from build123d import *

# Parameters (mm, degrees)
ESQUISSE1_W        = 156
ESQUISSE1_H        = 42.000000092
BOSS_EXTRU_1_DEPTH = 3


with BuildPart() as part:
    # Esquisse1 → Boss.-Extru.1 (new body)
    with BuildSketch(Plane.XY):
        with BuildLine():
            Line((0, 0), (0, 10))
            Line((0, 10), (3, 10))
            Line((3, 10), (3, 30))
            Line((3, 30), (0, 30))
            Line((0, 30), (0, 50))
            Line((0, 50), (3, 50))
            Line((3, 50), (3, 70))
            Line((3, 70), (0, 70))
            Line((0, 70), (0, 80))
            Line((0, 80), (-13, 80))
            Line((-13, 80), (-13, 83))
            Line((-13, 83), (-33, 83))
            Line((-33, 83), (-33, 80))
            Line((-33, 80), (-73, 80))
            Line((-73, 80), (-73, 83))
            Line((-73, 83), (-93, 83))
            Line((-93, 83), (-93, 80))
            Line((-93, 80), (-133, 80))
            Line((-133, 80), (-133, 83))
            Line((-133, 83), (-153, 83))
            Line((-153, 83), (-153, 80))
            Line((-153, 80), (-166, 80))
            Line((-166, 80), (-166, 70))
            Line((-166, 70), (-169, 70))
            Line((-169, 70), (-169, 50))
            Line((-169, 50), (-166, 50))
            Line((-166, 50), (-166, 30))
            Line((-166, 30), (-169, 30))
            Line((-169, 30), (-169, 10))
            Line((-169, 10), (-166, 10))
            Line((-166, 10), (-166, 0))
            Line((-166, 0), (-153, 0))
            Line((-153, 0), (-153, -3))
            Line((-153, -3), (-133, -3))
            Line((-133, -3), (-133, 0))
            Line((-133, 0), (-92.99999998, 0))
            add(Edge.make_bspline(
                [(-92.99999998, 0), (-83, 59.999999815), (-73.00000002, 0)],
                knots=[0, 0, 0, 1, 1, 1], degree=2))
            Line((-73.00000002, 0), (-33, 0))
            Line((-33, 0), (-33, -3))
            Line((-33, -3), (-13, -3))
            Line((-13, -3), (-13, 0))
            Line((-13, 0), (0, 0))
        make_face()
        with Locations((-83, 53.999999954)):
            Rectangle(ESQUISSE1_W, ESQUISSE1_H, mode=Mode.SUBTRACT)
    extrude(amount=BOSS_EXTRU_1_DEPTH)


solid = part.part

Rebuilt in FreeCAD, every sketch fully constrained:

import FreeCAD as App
import Part
import Sketcher

V = App.Vector
Q = App.Units.Quantity


def add_polygon(sketch, points):
    """Adds a closed chain of lines whose ends are joined by coincident constraints."""
    first, n = sketch.GeometryCount, len(points)
    for a, b in zip(points, points[1:] + points[:1]):
        sketch.addGeometry(Part.LineSegment(App.Vector(*a, 0), App.Vector(*b, 0)), False)
    for i in range(n):
        sketch.addConstraint(Sketcher.Constraint("Coincident", first + i, 2, first + (i + 1) % n, 1))

doc = App.newDocument("Part")
body = doc.addObject("PartDesign::Body", "Body")

sketch1 = doc.addObject("Sketcher::SketchObject", "Sketch")
body.addObject(sketch1)
sketch1.AttachmentSupport = (doc.XY_Plane, [""])
sketch1.MapMode = "FlatFace"
sketch1.addGeometry(Part.LineSegment(V(0, 0, 0), V(0, 10, 0)), False)
sketch1.addGeometry(Part.LineSegment(V(0, 10, 0), V(3, 10, 0)), False)
sketch1.addGeometry(Part.LineSegment(V(3, 10, 0), V(3, 30, 0)), False)
sketch1.addGeometry(Part.LineSegment(V(3, 30, 0), V(0, 30, 0)), False)
sketch1.addGeometry(Part.LineSegment(V(0, 30, 0), V(0, 50, 0)), False)
sketch1.addGeometry(Part.LineSegment(V(0, 50, 0), V(3, 50, 0)), False)
sketch1.addGeometry(Part.LineSegment(V(3, 50, 0), V(3, 70, 0)), False)
sketch1.addGeometry(Part.LineSegment(V(3, 70, 0), V(0, 70, 0)), False)
sketch1.addGeometry(Part.LineSegment(V(0, 70, 0), V(0, 80, 0)), False)
sketch1.addGeometry(Part.LineSegment(V(0, 80, 0), V(-13, 80, 0)), False)
sketch1.addGeometry(Part.LineSegment(V(-13, 80, 0), V(-13, 83, 0)), False)
sketch1.addGeometry(Part.LineSegment(V(-13, 83, 0), V(-33, 83, 0)), False)
sketch1.addGeometry(Part.LineSegment(V(-33, 83, 0), V(-33, 80, 0)), False)
sketch1.addGeometry(Part.LineSegment(V(-33, 80, 0), V(-73, 80, 0)), False)
sketch1.addGeometry(Part.LineSegment(V(-73, 80, 0), V(-73, 83, 0)), False)
sketch1.addGeometry(Part.LineSegment(V(-73, 83, 0), V(-93, 83, 0)), False)
sketch1.addGeometry(Part.LineSegment(V(-93, 83, 0), V(-93, 80, 0)), False)
sketch1.addGeometry(Part.LineSegment(V(-93, 80, 0), V(-133, 80, 0)), False)
sketch1.addGeometry(Part.LineSegment(V(-133, 80, 0), V(-133, 83, 0)), False)
sketch1.addGeometry(Part.LineSegment(V(-133, 83, 0), V(-153, 83, 0)), False)
sketch1.addGeometry(Part.LineSegment(V(-153, 83, 0), V(-153, 80, 0)), False)
sketch1.addGeometry(Part.LineSegment(V(-153, 80, 0), V(-166, 80, 0)), False)
sketch1.addGeometry(Part.LineSegment(V(-166, 80, 0), V(-166, 70, 0)), False)
sketch1.addGeometry(Part.LineSegment(V(-166, 70, 0), V(-169, 70, 0)), False)
sketch1.addGeometry(Part.LineSegment(V(-169, 70, 0), V(-169, 50, 0)), False)
sketch1.addGeometry(Part.LineSegment(V(-169, 50, 0), V(-166, 50, 0)), False)
sketch1.addGeometry(Part.LineSegment(V(-166, 50, 0), V(-166, 30, 0)), False)
sketch1.addGeometry(Part.LineSegment(V(-166, 30, 0), V(-169, 30, 0)), False)
sketch1.addGeometry(Part.LineSegment(V(-169, 30, 0), V(-169, 10, 0)), False)
sketch1.addGeometry(Part.LineSegment(V(-169, 10, 0), V(-166, 10, 0)), False)
sketch1.addGeometry(Part.LineSegment(V(-166, 10, 0), V(-166, 0, 0)), False)
sketch1.addGeometry(Part.LineSegment(V(-166, 0, 0), V(-153, 0, 0)), False)
sketch1.addGeometry(Part.LineSegment(V(-153, 0, 0), V(-153, -3, 0)), False)
sketch1.addGeometry(Part.LineSegment(V(-153, -3, 0), V(-133, -3, 0)), False)
sketch1.addGeometry(Part.LineSegment(V(-133, -3, 0), V(-133, 0, 0)), False)
sketch1.addGeometry(Part.LineSegment(V(-133, 0, 0), V(-93, 0, 0)), False)
sketch1.addGeometry(Part.BSplineCurve([V(-93, 0, 0), V(-83, 60, 0), V(-73, 0, 0)], [3, 3], [0, 1], False, 2, [1, 1, 1], False), False)
sketch1.addGeometry(Part.LineSegment(V(-73, 0, 0), V(-33, 0, 0)), False)
sketch1.addGeometry(Part.LineSegment(V(-33, 0, 0), V(-33, -3, 0)), False)
sketch1.addGeometry(Part.LineSegment(V(-33, -3, 0), V(-13, -3, 0)), False)
sketch1.addGeometry(Part.LineSegment(V(-13, -3, 0), V(-13, 0, 0)), False)
sketch1.addGeometry(Part.LineSegment(V(-13, 0, 0), V(0, 0, 0)), False)
add_polygon(sketch1, [(-5, 33), (-161, 33), (-161, 75), (-5, 75)])
sketch1.addConstraint([
    Sketcher.Constraint("Block", 36),
    Sketcher.Constraint("Coincident", 0, 2, 1, 1),
    Sketcher.Constraint("Coincident", 1, 2, 2, 1),
    Sketcher.Constraint("Coincident", 2, 2, 3, 1),
    Sketcher.Constraint("Coincident", 3, 2, 4, 1),
    Sketcher.Constraint("Coincident", 4, 2, 5, 1),
    Sketcher.Constraint("Coincident", 5, 2, 6, 1),
    Sketcher.Constraint("Coincident", 6, 2, 7, 1),
    Sketcher.Constraint("Coincident", 7, 2, 8, 1),
    Sketcher.Constraint("Coincident", 8, 2, 9, 1),
    Sketcher.Constraint("Coincident", 9, 2, 10, 1),
    Sketcher.Constraint("Coincident", 10, 2, 11, 1),
    Sketcher.Constraint("Coincident", 11, 2, 12, 1),
    Sketcher.Constraint("Coincident", 12, 2, 13, 1),
    Sketcher.Constraint("Coincident", 13, 2, 14, 1),
    Sketcher.Constraint("Coincident", 14, 2, 15, 1),
    Sketcher.Constraint("Coincident", 15, 2, 16, 1),
    Sketcher.Constraint("Coincident", 16, 2, 17, 1),
    Sketcher.Constraint("Coincident", 17, 2, 18, 1),
    Sketcher.Constraint("Coincident", 18, 2, 19, 1),
    Sketcher.Constraint("Coincident", 19, 2, 20, 1),
    Sketcher.Constraint("Coincident", 20, 2, 21, 1),
    Sketcher.Constraint("Coincident", 21, 2, 22, 1),
    Sketcher.Constraint("Coincident", 22, 2, 23, 1),
    Sketcher.Constraint("Coincident", 23, 2, 24, 1),
    Sketcher.Constraint("Coincident", 24, 2, 25, 1),
    Sketcher.Constraint("Coincident", 25, 2, 26, 1),
    Sketcher.Constraint("Coincident", 26, 2, 27, 1),
    Sketcher.Constraint("Coincident", 27, 2, 28, 1),
    Sketcher.Constraint("Coincident", 28, 2, 29, 1),
    Sketcher.Constraint("Coincident", 29, 2, 30, 1),
    Sketcher.Constraint("Coincident", 30, 2, 31, 1),
    Sketcher.Constraint("Coincident", 31, 2, 32, 1),
    Sketcher.Constraint("Coincident", 32, 2, 33, 1),
    Sketcher.Constraint("Coincident", 33, 2, 34, 1),
    Sketcher.Constraint("Coincident", 34, 2, 35, 1),
    Sketcher.Constraint("Coincident", 35, 2, 36, 1),
    Sketcher.Constraint("Coincident", 36, 2, 37, 1),
    Sketcher.Constraint("Coincident", 37, 2, 38, 1),
    Sketcher.Constraint("Coincident", 38, 2, 39, 1),
    Sketcher.Constraint("Coincident", 39, 2, 40, 1),
    Sketcher.Constraint("Coincident", 40, 2, 41, 1),
    Sketcher.Constraint("Coincident", 41, 2, 0, 1),
    Sketcher.Constraint("Vertical", 0),
    Sketcher.Constraint("Horizontal", 1),
    Sketcher.Constraint("Vertical", 2),
    Sketcher.Constraint("Horizontal", 3),
    Sketcher.Constraint("Vertical", 4),
    Sketcher.Constraint("Horizontal", 5),
    Sketcher.Constraint("Vertical", 6),
    Sketcher.Constraint("Horizontal", 7),
    Sketcher.Constraint("Vertical", 8),
    Sketcher.Constraint("Horizontal", 9),
    Sketcher.Constraint("Vertical", 10),
    Sketcher.Constraint("Horizontal", 11),
    Sketcher.Constraint("Vertical", 12),
    Sketcher.Constraint("Horizontal", 13),
    Sketcher.Constraint("Vertical", 14),
    Sketcher.Constraint("Horizontal", 15),
    Sketcher.Constraint("Vertical", 16),
    Sketcher.Constraint("Horizontal", 17),
    Sketcher.Constraint("Vertical", 18),
    Sketcher.Constraint("Horizontal", 19),
    Sketcher.Constraint("Vertical", 20),
    Sketcher.Constraint("Horizontal", 21),
    Sketcher.Constraint("Vertical", 22),
    Sketcher.Constraint("Horizontal", 23),
    Sketcher.Constraint("Vertical", 24),
    Sketcher.Constraint("Horizontal", 25),
    Sketcher.Constraint("Vertical", 26),
    Sketcher.Constraint("Horizontal", 27),
    Sketcher.Constraint("Vertical", 28),
    Sketcher.Constraint("Horizontal", 29),
    Sketcher.Constraint("Vertical", 30),
    Sketcher.Constraint("Horizontal", 31),
    Sketcher.Constraint("Vertical", 32),
    Sketcher.Constraint("Horizontal", 33),
    Sketcher.Constraint("Vertical", 34),
    Sketcher.Constraint("Horizontal", 35),
    Sketcher.Constraint("Horizontal", 37),
    Sketcher.Constraint("Vertical", 38),
    Sketcher.Constraint("Horizontal", 39),
    Sketcher.Constraint("Vertical", 40),
    Sketcher.Constraint("Horizontal", 41),
    Sketcher.Constraint("Horizontal", 42),
    Sketcher.Constraint("Vertical", 43),
    Sketcher.Constraint("Horizontal", 44),
    Sketcher.Constraint("Vertical", 45),
    Sketcher.Constraint("Coincident", 41, 2, -1, 1),
    Sketcher.Constraint("PointOnObject", 3, 2, -2),
    Sketcher.Constraint("PointOnObject", 7, 2, -2),
    Sketcher.Constraint("PointOnObject", 30, 2, -1),
    Sketcher.Constraint("DistanceX", 1, 1, 1, 2, Q("3 mm")),
    Sketcher.Constraint("DistanceX", 5, 1, 5, 2, Q("3 mm")),
    Sketcher.Constraint("DistanceX", 9, 2, 9, 1, Q("13 mm")),
    Sketcher.Constraint("DistanceX", 11, 2, 11, 1, Q("20 mm")),
    Sketcher.Constraint("DistanceX", 13, 2, 13, 1, Q("40 mm")),
    Sketcher.Constraint("DistanceX", 15, 2, 15, 1, Q("20 mm")),
    Sketcher.Constraint("DistanceX", 17, 2, 17, 1, Q("40 mm")),
    Sketcher.Constraint("DistanceX", 19, 2, 19, 1, Q("20 mm")),
    Sketcher.Constraint("DistanceX", 21, 2, 21, 1, Q("13 mm")),
    Sketcher.Constraint("DistanceX", 23, 2, 23, 1, Q("3 mm")),
    Sketcher.Constraint("DistanceX", 25, 1, 25, 2, Q("3 mm")),
    Sketcher.Constraint("DistanceX", 27, 2, 27, 1, Q("3 mm")),
    Sketcher.Constraint("DistanceX", 29, 1, 29, 2, Q("3 mm")),
    Sketcher.Constraint("DistanceX", 31, 1, 31, 2, Q("13 mm")),
    Sketcher.Constraint("DistanceX", 33, 1, 33, 2, Q("20 mm")),
    Sketcher.Constraint("DistanceX", 37, 1, 37, 2, Q("40 mm")),
    Sketcher.Constraint("DistanceX", 39, 1, 39, 2, Q("20 mm")),
    Sketcher.Constraint("DistanceX", 42, 2, 42, 1, Q("156 mm")),
    Sketcher.Constraint("DistanceY", 0, 1, 0, 2, Q("10 mm")),
    Sketcher.Constraint("DistanceY", 2, 1, 2, 2, Q("20 mm")),
    Sketcher.Constraint("DistanceY", 4, 1, 4, 2, Q("20 mm")),
    Sketcher.Constraint("DistanceY", 6, 1, 6, 2, Q("20 mm")),
    Sketcher.Constraint("DistanceY", 8, 1, 8, 2, Q("10 mm")),
    Sketcher.Constraint("DistanceY", 10, 1, 10, 2, Q("3 mm")),
    Sketcher.Constraint("DistanceY", 12, 2, 12, 1, Q("3 mm")),
    Sketcher.Constraint("DistanceY", 14, 1, 14, 2, Q("3 mm")),
    Sketcher.Constraint("DistanceY", 16, 2, 16, 1, Q("3 mm")),
    Sketcher.Constraint("DistanceY", 18, 1, 18, 2, Q("3 mm")),
    Sketcher.Constraint("DistanceY", 20, 2, 20, 1, Q("3 mm")),
    Sketcher.Constraint("DistanceY", 22, 2, 22, 1, Q("10 mm")),
    Sketcher.Constraint("DistanceY", 24, 2, 24, 1, Q("20 mm")),
    Sketcher.Constraint("DistanceY", 26, 2, 26, 1, Q("20 mm")),
    Sketcher.Constraint("DistanceY", 28, 2, 28, 1, Q("20 mm")),
    Sketcher.Constraint("DistanceY", 32, 2, 32, 1, Q("3 mm")),
    Sketcher.Constraint("DistanceY", 38, 2, 38, 1, Q("3 mm")),
    Sketcher.Constraint("DistanceY", 43, 1, 43, 2, Q("42 mm")),
    Sketcher.Constraint("DistanceX", 42, 2, -1, 1, Q("161 mm")),
    Sketcher.Constraint("DistanceY", -1, 1, 42, 2, Q("33 mm")),
])
pad1 = doc.addObject("PartDesign::Pad", "Pad")
body.addObject(pad1)
pad1.Profile = sketch1
pad1.Length = 3

doc.recompute()
